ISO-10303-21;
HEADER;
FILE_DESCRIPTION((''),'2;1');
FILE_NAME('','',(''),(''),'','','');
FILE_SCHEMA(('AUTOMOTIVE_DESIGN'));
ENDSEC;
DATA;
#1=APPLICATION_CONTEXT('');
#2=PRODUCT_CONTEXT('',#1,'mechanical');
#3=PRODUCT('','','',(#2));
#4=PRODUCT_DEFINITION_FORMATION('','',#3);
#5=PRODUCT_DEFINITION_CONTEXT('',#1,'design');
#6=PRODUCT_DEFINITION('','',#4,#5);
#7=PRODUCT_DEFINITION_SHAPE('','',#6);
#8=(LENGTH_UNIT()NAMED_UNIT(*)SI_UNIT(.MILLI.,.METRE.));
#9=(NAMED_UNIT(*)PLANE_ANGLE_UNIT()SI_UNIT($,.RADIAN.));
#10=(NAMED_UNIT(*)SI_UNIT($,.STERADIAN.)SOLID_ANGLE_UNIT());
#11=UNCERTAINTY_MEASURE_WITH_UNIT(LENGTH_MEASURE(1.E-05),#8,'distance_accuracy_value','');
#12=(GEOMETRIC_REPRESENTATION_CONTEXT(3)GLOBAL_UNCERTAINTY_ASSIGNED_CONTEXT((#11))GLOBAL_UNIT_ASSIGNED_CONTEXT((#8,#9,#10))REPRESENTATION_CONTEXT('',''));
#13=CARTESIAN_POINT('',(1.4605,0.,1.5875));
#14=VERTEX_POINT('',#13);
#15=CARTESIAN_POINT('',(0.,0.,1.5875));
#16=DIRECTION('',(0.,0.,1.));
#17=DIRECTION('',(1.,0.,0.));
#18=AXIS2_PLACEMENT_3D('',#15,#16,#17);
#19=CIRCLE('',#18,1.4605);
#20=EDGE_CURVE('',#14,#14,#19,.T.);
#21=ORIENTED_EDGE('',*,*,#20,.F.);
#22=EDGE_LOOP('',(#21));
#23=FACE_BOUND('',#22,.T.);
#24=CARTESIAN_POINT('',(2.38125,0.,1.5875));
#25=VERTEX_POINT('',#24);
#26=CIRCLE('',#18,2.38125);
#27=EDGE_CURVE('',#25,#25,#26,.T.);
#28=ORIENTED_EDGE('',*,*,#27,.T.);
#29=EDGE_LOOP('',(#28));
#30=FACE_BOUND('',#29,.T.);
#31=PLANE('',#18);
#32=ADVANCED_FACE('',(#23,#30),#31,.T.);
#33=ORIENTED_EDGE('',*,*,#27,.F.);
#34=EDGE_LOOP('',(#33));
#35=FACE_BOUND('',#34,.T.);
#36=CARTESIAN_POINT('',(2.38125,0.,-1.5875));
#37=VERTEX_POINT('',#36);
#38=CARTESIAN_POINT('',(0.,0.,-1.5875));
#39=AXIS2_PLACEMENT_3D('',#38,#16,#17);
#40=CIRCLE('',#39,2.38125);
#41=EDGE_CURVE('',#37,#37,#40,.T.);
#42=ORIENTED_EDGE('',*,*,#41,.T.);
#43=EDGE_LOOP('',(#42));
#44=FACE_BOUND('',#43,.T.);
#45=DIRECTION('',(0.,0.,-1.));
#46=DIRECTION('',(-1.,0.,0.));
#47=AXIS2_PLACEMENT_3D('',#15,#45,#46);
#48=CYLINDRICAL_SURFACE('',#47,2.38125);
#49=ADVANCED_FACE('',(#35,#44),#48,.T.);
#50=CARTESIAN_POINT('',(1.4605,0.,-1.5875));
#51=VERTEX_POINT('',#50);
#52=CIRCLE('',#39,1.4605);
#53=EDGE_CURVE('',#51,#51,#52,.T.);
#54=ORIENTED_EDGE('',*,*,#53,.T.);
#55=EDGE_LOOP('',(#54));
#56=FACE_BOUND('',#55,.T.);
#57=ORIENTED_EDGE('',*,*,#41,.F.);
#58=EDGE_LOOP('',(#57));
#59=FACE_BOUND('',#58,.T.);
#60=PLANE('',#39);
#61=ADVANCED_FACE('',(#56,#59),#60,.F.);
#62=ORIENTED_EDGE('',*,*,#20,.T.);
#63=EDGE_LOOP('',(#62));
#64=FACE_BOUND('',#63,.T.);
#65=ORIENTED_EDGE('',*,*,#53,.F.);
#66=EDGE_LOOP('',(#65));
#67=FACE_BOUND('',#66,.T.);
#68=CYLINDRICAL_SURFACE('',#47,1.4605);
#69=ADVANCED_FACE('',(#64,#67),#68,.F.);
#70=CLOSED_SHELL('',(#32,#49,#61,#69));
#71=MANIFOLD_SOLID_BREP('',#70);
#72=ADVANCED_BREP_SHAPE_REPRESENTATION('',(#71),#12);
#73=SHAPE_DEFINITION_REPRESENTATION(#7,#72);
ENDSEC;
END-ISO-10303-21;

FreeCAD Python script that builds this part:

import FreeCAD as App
import Part
import Sketcher
Q = App.Units.Quantity

doc = App.newDocument("Part")
body = doc.addObject("PartDesign::Body", "Body")

sketch1 = body.newObject("Sketcher::SketchObject", "Sketch")
sketch1.AttachmentSupport = (doc.getObject("XY_Plane"), [""])
sketch1.MapMode = "FlatFace"
sketch1.addGeometry([
    Part.Circle(App.Vector(0, 0, 0), App.Vector(0, 0, 1), 2.38125),
    Part.Circle(App.Vector(0, 0, 0), App.Vector(0, 0, 1), 1.4605),
], False)
sketch1.addConstraint([
    Sketcher.Constraint("Coincident", 0, 3, -1, 1),
    Sketcher.Constraint("Coincident", 1, 3, -1, 1),
    Sketcher.Constraint("Diameter", 0, Q("0.1875 in")),
    Sketcher.Constraint("Diameter", 1, Q("0.115 in")),
])
pad1 = body.newObject("PartDesign::Pad", "Pad")
pad1.Profile = sketch1
pad1.Length = Q("0.125 in")
pad1.Midplane = True

doc.recompute()
